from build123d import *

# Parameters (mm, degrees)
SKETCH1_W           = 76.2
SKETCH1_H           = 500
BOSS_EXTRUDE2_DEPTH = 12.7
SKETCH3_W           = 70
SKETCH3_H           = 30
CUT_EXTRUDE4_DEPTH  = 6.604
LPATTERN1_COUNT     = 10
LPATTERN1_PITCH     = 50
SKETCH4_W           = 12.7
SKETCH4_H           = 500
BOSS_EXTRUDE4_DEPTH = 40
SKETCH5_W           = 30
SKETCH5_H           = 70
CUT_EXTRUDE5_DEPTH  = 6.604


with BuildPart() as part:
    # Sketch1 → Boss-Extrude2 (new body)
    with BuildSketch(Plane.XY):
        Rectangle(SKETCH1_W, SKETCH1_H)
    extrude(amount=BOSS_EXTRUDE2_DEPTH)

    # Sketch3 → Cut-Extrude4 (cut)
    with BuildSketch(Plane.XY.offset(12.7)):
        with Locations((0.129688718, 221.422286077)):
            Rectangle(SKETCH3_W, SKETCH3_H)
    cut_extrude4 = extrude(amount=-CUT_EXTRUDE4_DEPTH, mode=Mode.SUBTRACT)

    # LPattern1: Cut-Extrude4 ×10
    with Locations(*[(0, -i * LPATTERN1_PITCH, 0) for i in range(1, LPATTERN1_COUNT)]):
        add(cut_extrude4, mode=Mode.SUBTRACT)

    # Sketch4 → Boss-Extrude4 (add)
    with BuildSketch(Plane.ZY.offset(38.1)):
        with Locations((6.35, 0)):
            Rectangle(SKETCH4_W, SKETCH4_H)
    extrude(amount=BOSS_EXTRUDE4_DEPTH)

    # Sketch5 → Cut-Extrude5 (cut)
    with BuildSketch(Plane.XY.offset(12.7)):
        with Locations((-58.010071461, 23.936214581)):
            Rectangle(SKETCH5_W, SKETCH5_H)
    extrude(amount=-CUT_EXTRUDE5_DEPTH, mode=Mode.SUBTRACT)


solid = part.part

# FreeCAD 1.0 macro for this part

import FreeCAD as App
import Part
import Sketcher
Q = App.Units.Quantity


def add_polygon(sketch, points):
    """Adds a closed chain of lines whose ends are joined by coincident constraints."""
    first, n = sketch.GeometryCount, len(points)
    for a, b in zip(points, points[1:] + points[:1]):
        sketch.addGeometry(Part.LineSegment(App.Vector(*a, 0), App.Vector(*b, 0)), False)
    for i in range(n):
        sketch.addConstraint(Sketcher.Constraint("Coincident", first + i, 2, first + (i + 1) % n, 1))

doc = App.newDocument("Part")
body = doc.addObject("PartDesign::Body", "Body")

# Sketch on XY plane
sketch1 = doc.addObject("Sketcher::SketchObject", "Sketch")
body.addObject(sketch1)
sketch1.AttachmentSupport = (doc.XY_Plane, [""])
sketch1.MapMode = "FlatFace"
add_polygon(sketch1, [(-38, 250), (-38, -250), (38, -250), (38, 250)])  # lines 0-3
sketch1.addConstraint(Sketcher.Constraint("Vertical", 0))
sketch1.addConstraint(Sketcher.Constraint("Horizontal", 1))
sketch1.addConstraint(Sketcher.Constraint("Vertical", 2))
sketch1.addConstraint(Sketcher.Constraint("Horizontal", 3))
sketch1.addConstraint(Sketcher.Constraint("Symmetric", 0, 2, 2, 2, -1, 1))
sketch1.addConstraint(Sketcher.Constraint("DistanceY", 0, 2, 0, 1, Q("500 mm")))
sketch1.addConstraint(Sketcher.Constraint("DistanceX", 1, 1, 1, 2, Q("76.2 mm")))
pad1 = doc.addObject("PartDesign::Pad", "Pad")
body.addObject(pad1)
pad1.Profile = sketch1
pad1.Length = 12.7

# Sketch on XY plane
sketch2 = doc.addObject("Sketcher::SketchObject", "Sketch001")
body.addObject(sketch2)
sketch2.AttachmentSupport = (doc.XY_Plane, [""])
sketch2.MapMode = "FlatFace"
sketch2.AttachmentOffset = App.Placement(App.Vector(0, 0, 12.7), App.Rotation())
add_polygon(sketch2, [(-35, 236), (-35, 206), (35, 206), (35, 236)])  # lines 0-3
sketch2.addConstraint(Sketcher.Constraint("Vertical", 0))
sketch2.addConstraint(Sketcher.Constraint("Horizontal", 1))
sketch2.addConstraint(Sketcher.Constraint("Vertical", 2))
sketch2.addConstraint(Sketcher.Constraint("Horizontal", 3))
sketch2.addConstraint(Sketcher.Constraint("DistanceX", 1, 1, 1, 2, Q("70 mm")))
sketch2.addConstraint(Sketcher.Constraint("DistanceY", 0, 2, 0, 1, Q("30 mm")))
sketch2.addConstraint(Sketcher.Constraint("DistanceX", 0, 2, -1, 1, Q("34.870311 mm")))
sketch2.addConstraint(Sketcher.Constraint("DistanceY", -1, 1, 0, 2, Q("206.422286 mm")))
pocket1 = doc.addObject("PartDesign::Pocket", "Pocket")
body.addObject(pocket1)
pocket1.Profile = sketch2
pocket1.Length = 6.604
doc.recompute()

linearpattern = doc.addObject("PartDesign::LinearPattern", "LinearPattern")
body.addObject(linearpattern)
linearpattern.Originals = [pocket1]
linearpattern.Direction = (doc.Y_Axis, [""])
linearpattern.Mode = "offset"
linearpattern.Offset = 50
linearpattern.Occurrences = 10
linearpattern.Reversed = True
body.Tip = linearpattern

# Sketch on YZ plane
sketch3 = doc.addObject("Sketcher::SketchObject", "Sketch002")
body.addObject(sketch3)
sketch3.AttachmentSupport = (doc.YZ_Plane, [""])
sketch3.MapMode = "FlatFace"
sketch3.AttachmentOffset = App.Placement(App.Vector(0, 0, -38.1), App.Rotation())
add_polygon(sketch3, [(250, 0), (-250, 0), (-250, 13), (250, 13)])  # lines 0-3
sketch3.addConstraint(Sketcher.Constraint("Horizontal", 0))
sketch3.addConstraint(Sketcher.Constraint("Vertical", 1))
sketch3.addConstraint(Sketcher.Constraint("Horizontal", 2))
sketch3.addConstraint(Sketcher.Constraint("Vertical", 3))
sketch3.addConstraint(Sketcher.Constraint("Symmetric", 0, 2, 3, 2, -1, 1))
sketch3.addConstraint(Sketcher.Constraint("DistanceX", 0, 2, 0, 1, Q("500 mm")))
sketch3.addConstraint(Sketcher.Constraint("DistanceY", 1, 1, 1, 2, Q("12.7 mm")))
pad2 = doc.addObject("PartDesign::Pad", "Pad001")
body.addObject(pad2)
pad2.Profile = sketch3
pad2.Length = 40
pad2.Reversed = True

# Sketch on XY plane
sketch4 = doc.addObject("Sketcher::SketchObject", "Sketch003")
body.addObject(sketch4)
sketch4.AttachmentSupport = (doc.XY_Plane, [""])
sketch4.MapMode = "FlatFace"
sketch4.AttachmentOffset = App.Placement(App.Vector(0, 0, 12.7), App.Rotation())
add_polygon(sketch4, [(-73, 59), (-73, -11), (-43, -11), (-43, 59)])  # lines 0-3
sketch4.addConstraint(Sketcher.Constraint("Vertical", 0))
sketch4.addConstraint(Sketcher.Constraint("Horizontal", 1))
sketch4.addConstraint(Sketcher.Constraint("Vertical", 2))
sketch4.addConstraint(Sketcher.Constraint("Horizontal", 3))
sketch4.addConstraint(Sketcher.Constraint("DistanceX", 1, 1, 1, 2, Q("30 mm")))
sketch4.addConstraint(Sketcher.Constraint("DistanceY", 0, 2, 0, 1, Q("70 mm")))
sketch4.addConstraint(Sketcher.Constraint("DistanceX", 0, 2, -1, 1, Q("73.010071 mm")))
sketch4.addConstraint(Sketcher.Constraint("DistanceY", 0, 2, -1, 1, Q("11.063785 mm")))
pocket2 = doc.addObject("PartDesign::Pocket", "Pocket001")
body.addObject(pocket2)
pocket2.Profile = sketch4
pocket2.Length = 6.604

doc.recompute()
